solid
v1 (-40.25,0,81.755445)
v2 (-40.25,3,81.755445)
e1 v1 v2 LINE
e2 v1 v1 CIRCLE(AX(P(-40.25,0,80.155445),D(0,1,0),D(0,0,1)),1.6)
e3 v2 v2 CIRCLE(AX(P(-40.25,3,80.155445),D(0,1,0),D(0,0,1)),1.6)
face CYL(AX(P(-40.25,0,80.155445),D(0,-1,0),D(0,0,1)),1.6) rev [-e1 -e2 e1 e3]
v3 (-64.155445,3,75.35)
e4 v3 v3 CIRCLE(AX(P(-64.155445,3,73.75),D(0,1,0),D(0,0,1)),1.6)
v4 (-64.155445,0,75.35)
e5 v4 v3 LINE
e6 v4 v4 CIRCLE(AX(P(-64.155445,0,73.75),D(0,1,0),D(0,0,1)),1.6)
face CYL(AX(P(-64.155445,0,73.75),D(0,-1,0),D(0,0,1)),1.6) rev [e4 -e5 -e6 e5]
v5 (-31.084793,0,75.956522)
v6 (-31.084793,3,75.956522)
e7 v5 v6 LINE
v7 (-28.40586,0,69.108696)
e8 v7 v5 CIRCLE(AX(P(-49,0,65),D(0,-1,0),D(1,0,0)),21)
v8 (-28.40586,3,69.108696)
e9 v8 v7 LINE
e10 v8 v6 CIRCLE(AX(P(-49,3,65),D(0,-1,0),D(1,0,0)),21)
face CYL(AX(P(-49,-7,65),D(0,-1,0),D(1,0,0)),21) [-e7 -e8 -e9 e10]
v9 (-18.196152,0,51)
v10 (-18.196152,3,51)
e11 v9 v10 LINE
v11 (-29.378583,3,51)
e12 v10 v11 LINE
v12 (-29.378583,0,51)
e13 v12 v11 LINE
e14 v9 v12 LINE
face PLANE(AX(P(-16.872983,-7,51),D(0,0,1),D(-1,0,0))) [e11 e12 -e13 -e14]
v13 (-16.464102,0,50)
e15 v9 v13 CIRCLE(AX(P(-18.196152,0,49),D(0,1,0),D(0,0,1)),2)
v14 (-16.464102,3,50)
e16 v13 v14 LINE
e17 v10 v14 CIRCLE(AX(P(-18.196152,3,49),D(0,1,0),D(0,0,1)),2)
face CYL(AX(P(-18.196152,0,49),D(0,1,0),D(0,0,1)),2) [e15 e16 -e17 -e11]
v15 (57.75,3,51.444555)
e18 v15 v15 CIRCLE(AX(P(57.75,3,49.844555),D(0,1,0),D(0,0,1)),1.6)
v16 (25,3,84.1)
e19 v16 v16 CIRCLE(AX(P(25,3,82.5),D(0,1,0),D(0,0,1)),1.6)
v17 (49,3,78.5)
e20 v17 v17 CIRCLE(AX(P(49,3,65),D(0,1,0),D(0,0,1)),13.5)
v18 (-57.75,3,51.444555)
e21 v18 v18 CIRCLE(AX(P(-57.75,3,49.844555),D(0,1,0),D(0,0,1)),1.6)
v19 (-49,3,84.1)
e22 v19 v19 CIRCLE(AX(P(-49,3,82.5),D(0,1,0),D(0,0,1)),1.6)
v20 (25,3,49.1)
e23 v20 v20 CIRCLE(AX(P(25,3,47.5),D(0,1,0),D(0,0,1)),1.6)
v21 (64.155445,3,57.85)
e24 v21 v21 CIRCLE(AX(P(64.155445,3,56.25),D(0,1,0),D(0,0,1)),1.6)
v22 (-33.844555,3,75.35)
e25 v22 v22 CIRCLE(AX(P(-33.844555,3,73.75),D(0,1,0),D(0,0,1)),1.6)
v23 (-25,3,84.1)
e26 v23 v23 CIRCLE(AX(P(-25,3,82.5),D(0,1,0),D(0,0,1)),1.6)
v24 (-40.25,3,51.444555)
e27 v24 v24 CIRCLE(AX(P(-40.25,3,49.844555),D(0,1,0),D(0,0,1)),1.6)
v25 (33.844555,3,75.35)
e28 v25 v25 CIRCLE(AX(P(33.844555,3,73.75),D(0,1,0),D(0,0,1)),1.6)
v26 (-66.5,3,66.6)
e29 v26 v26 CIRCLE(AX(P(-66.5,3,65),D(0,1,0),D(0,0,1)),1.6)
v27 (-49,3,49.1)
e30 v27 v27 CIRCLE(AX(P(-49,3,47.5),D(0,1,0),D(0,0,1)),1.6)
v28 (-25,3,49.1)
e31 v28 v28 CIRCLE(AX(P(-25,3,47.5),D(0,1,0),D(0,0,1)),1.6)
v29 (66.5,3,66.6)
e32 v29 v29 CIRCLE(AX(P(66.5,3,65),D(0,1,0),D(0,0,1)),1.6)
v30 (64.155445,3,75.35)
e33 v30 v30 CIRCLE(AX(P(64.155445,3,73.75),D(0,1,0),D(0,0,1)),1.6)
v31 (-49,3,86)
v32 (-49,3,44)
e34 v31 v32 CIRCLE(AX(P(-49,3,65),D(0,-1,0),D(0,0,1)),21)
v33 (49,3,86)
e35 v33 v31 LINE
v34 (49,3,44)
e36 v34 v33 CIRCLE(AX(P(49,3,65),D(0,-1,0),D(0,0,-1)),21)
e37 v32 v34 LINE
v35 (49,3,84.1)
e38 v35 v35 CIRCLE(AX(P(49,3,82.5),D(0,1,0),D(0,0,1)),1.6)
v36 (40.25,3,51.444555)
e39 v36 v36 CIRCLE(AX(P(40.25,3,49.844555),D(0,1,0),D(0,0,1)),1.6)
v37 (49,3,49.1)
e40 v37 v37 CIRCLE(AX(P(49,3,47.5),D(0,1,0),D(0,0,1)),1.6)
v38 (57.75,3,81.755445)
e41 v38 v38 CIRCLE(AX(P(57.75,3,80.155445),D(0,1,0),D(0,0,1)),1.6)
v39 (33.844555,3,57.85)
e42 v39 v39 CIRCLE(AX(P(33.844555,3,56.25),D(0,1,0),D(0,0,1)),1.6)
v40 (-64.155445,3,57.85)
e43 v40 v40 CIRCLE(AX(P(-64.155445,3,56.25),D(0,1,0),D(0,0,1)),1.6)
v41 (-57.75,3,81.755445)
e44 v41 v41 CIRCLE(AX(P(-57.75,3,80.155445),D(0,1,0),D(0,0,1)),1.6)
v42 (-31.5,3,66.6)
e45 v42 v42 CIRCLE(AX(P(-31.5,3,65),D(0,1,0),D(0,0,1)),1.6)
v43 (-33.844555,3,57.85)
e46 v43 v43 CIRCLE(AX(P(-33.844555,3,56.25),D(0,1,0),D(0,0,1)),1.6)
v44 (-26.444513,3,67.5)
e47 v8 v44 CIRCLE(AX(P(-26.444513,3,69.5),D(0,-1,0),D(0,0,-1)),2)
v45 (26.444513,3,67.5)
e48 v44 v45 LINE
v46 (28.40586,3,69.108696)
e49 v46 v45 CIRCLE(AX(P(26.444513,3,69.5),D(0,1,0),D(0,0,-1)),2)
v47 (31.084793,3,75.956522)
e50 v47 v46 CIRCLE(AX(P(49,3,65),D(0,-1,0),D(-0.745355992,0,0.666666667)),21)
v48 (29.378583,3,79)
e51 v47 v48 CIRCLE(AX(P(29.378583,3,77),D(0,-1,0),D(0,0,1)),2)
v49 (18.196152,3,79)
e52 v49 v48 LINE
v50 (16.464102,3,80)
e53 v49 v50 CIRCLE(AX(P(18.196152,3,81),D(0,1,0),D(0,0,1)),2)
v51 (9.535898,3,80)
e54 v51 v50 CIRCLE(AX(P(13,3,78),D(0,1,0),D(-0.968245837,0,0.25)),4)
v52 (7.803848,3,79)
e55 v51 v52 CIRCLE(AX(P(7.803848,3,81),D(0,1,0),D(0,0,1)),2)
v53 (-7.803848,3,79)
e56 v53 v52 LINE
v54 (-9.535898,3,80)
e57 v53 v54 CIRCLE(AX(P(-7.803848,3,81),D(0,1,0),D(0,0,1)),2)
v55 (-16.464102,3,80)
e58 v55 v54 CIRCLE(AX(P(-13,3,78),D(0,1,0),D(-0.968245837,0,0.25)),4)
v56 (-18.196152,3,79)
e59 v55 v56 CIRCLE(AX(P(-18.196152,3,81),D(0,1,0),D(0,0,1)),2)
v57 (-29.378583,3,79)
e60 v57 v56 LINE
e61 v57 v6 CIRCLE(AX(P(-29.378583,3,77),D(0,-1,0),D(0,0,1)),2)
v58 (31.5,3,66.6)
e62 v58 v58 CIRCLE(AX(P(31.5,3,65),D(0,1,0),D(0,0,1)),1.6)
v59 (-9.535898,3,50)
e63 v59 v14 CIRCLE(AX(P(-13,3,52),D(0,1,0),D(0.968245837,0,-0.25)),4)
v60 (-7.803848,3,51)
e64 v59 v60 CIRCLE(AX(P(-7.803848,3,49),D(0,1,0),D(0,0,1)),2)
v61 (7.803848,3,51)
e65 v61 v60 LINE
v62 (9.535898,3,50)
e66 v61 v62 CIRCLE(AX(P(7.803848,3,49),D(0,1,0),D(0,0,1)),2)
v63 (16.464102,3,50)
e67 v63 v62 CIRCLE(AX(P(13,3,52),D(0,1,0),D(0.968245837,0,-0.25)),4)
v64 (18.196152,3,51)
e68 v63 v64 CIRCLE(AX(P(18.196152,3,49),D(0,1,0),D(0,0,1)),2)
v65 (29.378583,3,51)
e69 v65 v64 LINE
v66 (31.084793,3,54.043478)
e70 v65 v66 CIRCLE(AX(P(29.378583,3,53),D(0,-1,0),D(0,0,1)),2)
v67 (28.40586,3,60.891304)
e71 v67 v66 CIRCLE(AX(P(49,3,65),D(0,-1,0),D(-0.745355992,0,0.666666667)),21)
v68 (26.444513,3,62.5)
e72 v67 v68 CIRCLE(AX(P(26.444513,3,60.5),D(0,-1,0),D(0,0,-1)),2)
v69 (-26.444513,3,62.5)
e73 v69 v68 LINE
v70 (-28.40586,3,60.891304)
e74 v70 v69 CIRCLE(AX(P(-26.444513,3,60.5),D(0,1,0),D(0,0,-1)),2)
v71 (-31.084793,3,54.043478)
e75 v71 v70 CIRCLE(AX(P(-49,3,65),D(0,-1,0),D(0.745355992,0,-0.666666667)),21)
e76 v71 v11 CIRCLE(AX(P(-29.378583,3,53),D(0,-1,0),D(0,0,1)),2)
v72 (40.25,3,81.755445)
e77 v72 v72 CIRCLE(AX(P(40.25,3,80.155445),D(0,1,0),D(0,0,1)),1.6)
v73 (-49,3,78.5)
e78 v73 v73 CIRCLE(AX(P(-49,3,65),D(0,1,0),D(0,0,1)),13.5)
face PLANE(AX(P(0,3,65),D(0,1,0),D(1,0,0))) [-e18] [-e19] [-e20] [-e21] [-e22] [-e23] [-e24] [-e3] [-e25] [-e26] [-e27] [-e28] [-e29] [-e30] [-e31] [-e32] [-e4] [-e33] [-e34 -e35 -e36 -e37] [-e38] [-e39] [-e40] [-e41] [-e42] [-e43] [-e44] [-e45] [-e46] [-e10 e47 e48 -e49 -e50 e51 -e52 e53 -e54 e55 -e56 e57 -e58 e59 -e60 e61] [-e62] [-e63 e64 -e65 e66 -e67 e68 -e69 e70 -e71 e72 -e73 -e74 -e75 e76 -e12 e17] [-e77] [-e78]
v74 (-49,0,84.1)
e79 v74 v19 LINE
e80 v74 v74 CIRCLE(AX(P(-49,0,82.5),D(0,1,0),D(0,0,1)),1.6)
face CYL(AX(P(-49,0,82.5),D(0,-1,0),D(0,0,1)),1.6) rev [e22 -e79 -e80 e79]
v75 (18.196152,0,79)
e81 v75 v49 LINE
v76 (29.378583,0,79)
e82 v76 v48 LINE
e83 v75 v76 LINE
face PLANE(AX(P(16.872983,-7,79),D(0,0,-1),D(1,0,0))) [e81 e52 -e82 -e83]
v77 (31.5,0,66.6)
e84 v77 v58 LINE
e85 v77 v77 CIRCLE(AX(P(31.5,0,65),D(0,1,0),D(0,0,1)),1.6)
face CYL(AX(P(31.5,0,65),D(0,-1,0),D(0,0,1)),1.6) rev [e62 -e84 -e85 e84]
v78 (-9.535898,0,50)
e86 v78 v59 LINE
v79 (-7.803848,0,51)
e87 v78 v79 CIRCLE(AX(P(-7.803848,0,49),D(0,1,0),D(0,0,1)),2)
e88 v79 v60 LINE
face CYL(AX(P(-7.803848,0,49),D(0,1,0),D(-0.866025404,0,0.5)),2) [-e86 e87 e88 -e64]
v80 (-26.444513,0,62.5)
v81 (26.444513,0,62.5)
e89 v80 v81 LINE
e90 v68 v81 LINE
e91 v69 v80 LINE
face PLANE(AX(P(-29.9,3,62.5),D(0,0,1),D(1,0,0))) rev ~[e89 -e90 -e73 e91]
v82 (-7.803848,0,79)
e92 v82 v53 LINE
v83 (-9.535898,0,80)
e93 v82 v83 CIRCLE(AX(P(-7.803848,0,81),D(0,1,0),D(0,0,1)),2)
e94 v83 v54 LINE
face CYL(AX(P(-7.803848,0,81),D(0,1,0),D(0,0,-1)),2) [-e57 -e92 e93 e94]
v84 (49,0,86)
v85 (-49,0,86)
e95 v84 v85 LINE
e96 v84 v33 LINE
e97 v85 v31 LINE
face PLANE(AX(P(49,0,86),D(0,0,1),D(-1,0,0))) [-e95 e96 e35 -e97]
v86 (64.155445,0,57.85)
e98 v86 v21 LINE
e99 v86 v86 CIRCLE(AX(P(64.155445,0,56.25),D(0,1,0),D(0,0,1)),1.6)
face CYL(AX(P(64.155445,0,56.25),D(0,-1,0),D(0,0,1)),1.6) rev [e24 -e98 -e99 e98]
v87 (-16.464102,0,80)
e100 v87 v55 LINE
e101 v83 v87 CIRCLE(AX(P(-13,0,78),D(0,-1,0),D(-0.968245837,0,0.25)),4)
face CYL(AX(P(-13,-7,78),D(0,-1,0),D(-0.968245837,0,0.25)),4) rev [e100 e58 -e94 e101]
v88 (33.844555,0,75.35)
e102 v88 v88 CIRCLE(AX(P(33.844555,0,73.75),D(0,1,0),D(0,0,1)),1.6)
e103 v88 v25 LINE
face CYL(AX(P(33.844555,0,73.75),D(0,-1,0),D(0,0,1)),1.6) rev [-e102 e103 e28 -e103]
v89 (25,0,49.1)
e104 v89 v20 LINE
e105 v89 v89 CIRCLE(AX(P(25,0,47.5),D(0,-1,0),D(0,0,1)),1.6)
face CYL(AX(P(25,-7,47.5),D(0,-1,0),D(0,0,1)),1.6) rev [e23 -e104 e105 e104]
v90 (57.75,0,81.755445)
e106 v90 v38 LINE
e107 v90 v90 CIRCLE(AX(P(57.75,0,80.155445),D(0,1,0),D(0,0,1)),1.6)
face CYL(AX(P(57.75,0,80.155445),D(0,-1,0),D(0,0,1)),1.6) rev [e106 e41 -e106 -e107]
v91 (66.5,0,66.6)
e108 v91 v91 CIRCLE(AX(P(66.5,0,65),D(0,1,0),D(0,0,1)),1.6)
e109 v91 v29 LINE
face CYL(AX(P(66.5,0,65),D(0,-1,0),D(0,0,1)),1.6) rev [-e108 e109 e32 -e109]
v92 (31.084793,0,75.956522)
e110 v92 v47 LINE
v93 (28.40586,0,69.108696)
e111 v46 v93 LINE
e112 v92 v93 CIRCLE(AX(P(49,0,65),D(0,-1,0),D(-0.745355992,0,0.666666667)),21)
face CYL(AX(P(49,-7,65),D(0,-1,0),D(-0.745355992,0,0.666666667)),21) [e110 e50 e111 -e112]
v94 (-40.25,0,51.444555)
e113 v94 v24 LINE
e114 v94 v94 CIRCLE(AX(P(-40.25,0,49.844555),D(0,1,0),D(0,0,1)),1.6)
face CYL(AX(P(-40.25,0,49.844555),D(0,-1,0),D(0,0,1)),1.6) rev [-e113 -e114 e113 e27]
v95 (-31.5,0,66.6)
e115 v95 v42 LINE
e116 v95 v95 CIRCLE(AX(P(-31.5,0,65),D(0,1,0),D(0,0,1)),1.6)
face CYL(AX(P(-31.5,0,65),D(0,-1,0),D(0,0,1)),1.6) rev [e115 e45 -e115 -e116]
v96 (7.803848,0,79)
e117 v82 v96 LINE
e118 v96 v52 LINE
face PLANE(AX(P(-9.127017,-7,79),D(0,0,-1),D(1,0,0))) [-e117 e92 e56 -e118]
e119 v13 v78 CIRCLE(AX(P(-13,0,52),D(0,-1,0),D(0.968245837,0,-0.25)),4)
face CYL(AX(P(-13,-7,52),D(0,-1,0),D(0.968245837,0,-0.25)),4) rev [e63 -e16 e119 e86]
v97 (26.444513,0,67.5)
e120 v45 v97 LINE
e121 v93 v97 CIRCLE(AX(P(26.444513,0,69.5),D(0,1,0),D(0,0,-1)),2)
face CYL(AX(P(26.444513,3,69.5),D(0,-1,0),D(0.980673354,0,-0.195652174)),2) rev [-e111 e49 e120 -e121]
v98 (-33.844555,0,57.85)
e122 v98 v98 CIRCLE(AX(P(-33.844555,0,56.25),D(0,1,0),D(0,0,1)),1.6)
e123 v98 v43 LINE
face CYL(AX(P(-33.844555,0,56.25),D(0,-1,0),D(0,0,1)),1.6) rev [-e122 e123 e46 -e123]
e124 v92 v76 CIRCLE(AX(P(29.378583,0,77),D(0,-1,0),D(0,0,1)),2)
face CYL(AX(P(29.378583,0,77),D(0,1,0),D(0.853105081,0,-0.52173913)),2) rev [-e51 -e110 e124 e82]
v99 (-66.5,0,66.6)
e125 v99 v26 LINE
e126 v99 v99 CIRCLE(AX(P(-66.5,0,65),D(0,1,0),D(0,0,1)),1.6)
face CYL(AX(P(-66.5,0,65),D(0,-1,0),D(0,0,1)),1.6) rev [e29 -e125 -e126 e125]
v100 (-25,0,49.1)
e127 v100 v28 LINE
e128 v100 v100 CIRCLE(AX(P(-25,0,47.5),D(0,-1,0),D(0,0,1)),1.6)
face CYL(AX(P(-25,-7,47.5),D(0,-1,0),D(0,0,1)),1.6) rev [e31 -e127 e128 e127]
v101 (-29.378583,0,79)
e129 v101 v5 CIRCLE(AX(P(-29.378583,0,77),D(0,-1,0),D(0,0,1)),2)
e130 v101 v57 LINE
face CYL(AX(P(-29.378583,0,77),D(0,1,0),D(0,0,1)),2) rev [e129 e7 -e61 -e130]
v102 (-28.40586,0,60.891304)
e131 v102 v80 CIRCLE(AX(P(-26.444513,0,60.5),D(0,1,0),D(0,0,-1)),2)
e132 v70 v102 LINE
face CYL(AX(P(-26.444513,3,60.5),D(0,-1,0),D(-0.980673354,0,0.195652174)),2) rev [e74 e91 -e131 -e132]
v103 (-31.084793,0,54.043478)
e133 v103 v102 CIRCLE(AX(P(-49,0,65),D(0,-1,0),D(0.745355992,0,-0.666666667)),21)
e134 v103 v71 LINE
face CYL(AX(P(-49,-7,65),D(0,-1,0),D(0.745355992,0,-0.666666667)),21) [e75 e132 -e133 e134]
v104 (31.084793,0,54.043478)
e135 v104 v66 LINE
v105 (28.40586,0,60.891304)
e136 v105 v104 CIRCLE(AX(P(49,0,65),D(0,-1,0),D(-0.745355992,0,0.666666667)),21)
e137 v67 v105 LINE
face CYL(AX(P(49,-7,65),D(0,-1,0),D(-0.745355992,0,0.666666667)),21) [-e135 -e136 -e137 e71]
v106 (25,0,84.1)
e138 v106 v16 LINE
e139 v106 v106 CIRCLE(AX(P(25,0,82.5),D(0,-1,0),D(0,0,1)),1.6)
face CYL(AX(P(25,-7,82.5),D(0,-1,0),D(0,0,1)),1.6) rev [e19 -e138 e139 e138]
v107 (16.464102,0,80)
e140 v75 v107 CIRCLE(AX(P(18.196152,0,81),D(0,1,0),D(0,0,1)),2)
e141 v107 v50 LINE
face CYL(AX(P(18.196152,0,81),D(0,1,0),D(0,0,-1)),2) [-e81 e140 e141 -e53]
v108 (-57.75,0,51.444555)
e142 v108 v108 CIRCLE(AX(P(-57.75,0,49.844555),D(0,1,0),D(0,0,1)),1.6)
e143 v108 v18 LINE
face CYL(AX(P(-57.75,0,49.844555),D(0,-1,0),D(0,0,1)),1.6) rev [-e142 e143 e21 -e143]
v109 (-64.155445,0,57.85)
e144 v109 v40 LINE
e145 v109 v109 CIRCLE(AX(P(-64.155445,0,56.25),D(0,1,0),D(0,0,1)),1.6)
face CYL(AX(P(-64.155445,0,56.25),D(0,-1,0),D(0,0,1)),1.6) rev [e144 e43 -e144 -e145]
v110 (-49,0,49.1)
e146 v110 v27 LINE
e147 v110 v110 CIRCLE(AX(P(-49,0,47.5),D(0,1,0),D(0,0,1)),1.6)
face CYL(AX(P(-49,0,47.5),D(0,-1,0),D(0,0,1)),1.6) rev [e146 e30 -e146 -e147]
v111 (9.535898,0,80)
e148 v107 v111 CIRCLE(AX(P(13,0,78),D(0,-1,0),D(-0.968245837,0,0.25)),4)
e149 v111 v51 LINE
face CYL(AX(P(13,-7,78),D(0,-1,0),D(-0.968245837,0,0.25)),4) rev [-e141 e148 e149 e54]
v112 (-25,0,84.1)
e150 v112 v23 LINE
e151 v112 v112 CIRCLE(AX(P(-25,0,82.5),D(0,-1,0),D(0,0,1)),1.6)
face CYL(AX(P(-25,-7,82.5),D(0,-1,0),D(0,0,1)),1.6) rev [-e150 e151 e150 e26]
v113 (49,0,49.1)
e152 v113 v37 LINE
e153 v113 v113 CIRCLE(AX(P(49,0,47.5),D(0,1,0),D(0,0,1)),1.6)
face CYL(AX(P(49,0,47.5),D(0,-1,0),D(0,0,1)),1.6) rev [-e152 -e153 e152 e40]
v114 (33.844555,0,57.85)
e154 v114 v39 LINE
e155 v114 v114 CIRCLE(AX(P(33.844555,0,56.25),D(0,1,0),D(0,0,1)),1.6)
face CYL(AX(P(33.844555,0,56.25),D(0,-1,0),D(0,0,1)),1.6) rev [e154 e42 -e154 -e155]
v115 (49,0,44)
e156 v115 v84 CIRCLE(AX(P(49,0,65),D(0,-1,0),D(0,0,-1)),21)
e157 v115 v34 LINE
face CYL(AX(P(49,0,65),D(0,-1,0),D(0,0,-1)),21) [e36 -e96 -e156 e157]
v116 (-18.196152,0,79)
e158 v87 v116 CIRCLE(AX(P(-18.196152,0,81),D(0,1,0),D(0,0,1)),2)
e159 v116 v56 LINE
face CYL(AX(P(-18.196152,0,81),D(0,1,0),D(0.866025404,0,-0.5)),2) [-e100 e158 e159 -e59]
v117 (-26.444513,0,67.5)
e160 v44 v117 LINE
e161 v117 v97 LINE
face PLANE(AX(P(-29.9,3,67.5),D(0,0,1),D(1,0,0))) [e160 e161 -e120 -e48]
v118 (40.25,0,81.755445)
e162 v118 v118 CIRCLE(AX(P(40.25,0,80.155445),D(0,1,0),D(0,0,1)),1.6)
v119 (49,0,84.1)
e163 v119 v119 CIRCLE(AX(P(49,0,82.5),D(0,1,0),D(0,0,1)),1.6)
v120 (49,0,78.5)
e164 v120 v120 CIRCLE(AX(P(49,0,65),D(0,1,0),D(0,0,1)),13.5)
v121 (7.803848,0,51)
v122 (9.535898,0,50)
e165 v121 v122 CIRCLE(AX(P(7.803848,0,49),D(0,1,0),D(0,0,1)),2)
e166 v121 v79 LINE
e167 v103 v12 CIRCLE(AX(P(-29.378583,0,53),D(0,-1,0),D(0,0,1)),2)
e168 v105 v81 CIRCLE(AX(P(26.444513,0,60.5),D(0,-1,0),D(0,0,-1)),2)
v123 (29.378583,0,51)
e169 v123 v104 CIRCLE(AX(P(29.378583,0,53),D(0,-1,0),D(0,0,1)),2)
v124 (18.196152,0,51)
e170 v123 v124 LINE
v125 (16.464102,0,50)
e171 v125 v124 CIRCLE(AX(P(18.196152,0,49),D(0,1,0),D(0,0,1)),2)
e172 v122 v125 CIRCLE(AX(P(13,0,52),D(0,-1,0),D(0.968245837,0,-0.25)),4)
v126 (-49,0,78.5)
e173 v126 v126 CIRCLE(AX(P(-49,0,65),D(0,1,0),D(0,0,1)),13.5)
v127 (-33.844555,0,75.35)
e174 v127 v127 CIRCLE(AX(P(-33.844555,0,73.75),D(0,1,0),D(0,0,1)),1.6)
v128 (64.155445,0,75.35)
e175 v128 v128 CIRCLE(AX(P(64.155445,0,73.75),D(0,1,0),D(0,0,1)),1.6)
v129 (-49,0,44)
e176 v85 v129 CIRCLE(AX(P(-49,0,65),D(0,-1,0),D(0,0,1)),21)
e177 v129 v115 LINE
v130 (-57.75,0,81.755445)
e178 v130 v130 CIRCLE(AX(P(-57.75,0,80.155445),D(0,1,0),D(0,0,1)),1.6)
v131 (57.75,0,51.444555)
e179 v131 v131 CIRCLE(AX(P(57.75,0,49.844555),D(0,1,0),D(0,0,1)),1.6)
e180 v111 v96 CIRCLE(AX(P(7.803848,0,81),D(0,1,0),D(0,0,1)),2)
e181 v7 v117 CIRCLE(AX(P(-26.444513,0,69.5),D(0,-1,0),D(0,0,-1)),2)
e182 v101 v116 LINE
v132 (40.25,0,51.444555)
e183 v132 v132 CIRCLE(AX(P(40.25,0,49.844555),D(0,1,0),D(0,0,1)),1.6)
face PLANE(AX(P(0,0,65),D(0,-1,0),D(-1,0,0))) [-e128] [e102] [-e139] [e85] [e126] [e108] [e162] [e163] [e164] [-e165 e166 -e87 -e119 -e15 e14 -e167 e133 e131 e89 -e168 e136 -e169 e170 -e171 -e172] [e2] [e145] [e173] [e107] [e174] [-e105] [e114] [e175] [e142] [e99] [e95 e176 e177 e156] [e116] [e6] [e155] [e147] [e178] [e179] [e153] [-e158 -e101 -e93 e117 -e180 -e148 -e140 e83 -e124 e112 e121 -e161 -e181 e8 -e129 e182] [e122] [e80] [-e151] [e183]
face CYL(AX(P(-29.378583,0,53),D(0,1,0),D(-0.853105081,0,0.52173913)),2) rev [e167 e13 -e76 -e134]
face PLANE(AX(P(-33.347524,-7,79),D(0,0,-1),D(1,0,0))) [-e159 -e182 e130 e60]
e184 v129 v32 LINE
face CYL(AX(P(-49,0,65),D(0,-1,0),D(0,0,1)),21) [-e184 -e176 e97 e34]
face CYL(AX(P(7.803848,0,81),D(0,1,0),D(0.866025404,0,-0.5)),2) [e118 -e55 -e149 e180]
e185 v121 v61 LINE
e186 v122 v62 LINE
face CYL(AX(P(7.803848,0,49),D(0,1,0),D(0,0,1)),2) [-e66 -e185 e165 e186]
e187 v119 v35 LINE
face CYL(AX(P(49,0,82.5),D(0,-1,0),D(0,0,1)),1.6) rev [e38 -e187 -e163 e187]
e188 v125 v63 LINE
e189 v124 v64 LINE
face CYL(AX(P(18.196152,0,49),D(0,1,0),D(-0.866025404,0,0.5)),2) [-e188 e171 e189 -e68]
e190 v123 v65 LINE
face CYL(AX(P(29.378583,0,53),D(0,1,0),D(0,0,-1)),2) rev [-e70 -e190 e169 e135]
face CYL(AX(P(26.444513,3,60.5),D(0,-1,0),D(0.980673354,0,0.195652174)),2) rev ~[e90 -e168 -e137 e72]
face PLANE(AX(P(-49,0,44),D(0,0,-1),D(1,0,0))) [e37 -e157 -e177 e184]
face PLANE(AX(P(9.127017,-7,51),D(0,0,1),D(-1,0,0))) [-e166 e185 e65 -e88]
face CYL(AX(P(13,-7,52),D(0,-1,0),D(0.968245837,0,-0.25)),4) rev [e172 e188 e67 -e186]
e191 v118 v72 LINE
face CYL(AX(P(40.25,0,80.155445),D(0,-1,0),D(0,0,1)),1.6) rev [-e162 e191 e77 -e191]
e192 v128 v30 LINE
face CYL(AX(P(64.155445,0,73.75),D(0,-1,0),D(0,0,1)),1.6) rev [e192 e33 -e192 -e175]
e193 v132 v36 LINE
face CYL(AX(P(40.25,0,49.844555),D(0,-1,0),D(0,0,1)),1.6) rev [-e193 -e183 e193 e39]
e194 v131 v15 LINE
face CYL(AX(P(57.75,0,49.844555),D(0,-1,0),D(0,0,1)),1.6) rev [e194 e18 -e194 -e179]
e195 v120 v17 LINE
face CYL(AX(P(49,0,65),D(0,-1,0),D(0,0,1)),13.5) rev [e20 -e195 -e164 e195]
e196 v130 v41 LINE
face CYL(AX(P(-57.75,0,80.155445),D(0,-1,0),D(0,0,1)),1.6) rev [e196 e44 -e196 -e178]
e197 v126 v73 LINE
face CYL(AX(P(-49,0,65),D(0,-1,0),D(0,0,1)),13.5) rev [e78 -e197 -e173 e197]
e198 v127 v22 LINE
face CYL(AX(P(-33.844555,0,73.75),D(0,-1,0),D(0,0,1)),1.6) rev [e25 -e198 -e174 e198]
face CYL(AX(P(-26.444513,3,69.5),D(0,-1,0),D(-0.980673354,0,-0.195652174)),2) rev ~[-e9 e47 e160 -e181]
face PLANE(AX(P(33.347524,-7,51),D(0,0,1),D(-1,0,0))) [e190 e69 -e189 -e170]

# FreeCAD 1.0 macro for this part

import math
import FreeCAD as App
import Part
import Sketcher


def edges_at(feature, points):
    """Names of the edges that pass closest to the given points."""
    edges = feature.Shape.Edges
    near = lambda p: min(range(len(edges)), key=lambda i: edges[i].distToShape(Part.Vertex(*p))[0])
    return sorted({f"Edge{near(p) + 1}" for p in points})


def add_polygon(sketch, points):
    """Adds a closed chain of lines whose ends are joined by coincident constraints."""
    first, n = sketch.GeometryCount, len(points)
    for a, b in zip(points, points[1:] + points[:1]):
        sketch.addGeometry(Part.LineSegment(App.Vector(*a, 0), App.Vector(*b, 0)), False)
    for i in range(n):
        sketch.addConstraint(Sketcher.Constraint("Coincident", first + i, 2, first + (i + 1) % n, 1))

doc = App.newDocument("Part")
params = doc.addObject("Spreadsheet::Sheet", "Params")
for row, (alias, value) in enumerate([
    ("sketch1_diameter", "27 mm"),
    ("sketch1_radius", "21 mm"),
    ("sketch1_diameter2", "3.2 mm"),
    ("sketch1_width", "98 mm"),
    ("pad1_length", "3 mm"),
    ("sketch2_radius", "4 mm"),
    ("sketch2_radius2", "21 mm"),
    ("sketch2_radius3", "1.6 mm"),
    ("pocket1_length", "10 mm"),
    ("sketch3_height", "5 mm"),
    ("sketch3_width", "59.8 mm"),
    ("pad2_length", "3 mm"),
    ("fillet_radius", "2 mm"),
    ("sketch4_diameter", "3.2 mm"),
    ("pocket2_length", "10 mm"),
], start=1):
    params.set(f"A{row}", alias)
    params.set(f"B{row}", "=" + value)
    params.setAlias(f"B{row}", alias)

body = doc.addObject("PartDesign::Body", "Body")

# Sketch on XZ plane
sketch1 = doc.addObject("Sketcher::SketchObject", "Sketch")
body.addObject(sketch1)
sketch1.AttachmentSupport = (doc.XZ_Plane, [""])
sketch1.MapMode = "FlatFace"
sketch1.addGeometry(Part.LineSegment(App.Vector(49, 44, 0), App.Vector(-49, 44, 0)), False)
sketch1.addGeometry(Part.ArcOfCircle(Part.Circle(App.Vector(-49, 65, 0), App.Vector(0, 0, 1), 21), math.radians(90), math.radians(270)), False)
sketch1.addGeometry(Part.LineSegment(App.Vector(-49, 86, 0), App.Vector(49, 86, 0)), False)
sketch1.addGeometry(Part.ArcOfCircle(Part.Circle(App.Vector(49, 65, 0), App.Vector(0, 0, 1), 21), math.radians(-90), math.radians(90)), False)
sketch1.addGeometry(Part.Circle(App.Vector(57.75, 80.155445, 0), App.Vector(0, 0, 1), 1.6), False)
sketch1.addGeometry(Part.Circle(App.Vector(49, 82.5, 0), App.Vector(0, 0, 1), 1.6), False)
sketch1.addGeometry(Part.Circle(App.Vector(40.25, 80.155445, 0), App.Vector(0, 0, 1), 1.6), False)
sketch1.addGeometry(Part.Circle(App.Vector(13, 78, 0), App.Vector(0, 0, 1), 1.6), False)
sketch1.addGeometry(Part.Circle(App.Vector(64.155445, 73.75, 0), App.Vector(0, 0, 1), 1.6), False)
sketch1.addGeometry(Part.Circle(App.Vector(66.5, 65, 0), App.Vector(0, 0, 1), 1.6), False)
sketch1.addGeometry(Part.Circle(App.Vector(49, 65, 0), App.Vector(0, 0, 1), 13.5), False)
sketch1.addGeometry(Part.Circle(App.Vector(33.844555, 73.75, 0), App.Vector(0, 0, 1), 1.6), False)
sketch1.addGeometry(Part.Circle(App.Vector(31.5, 65, 0), App.Vector(0, 0, 1), 1.6), False)
sketch1.addGeometry(Part.Circle(App.Vector(-13, 78, 0), App.Vector(0, 0, 1), 1.6), False)
sketch1.addGeometry(Part.Circle(App.Vector(-49, 82.5, 0), App.Vector(0, 0, 1), 1.6), False)
sketch1.addGeometry(Part.Circle(App.Vector(-40.25, 80.155445, 0), App.Vector(0, 0, 1), 1.6), False)
sketch1.addGeometry(Part.Circle(App.Vector(-57.75, 80.155445, 0), App.Vector(0, 0, 1), 1.6), False)
sketch1.addGeometry(Part.Circle(App.Vector(-33.844555, 73.75, 0), App.Vector(0, 0, 1), 1.6), False)
sketch1.addGeometry(Part.Circle(App.Vector(-31.5, 65, 0), App.Vector(0, 0, 1), 1.6), False)
sketch1.addGeometry(Part.Circle(App.Vector(-64.155445, 73.75, 0), App.Vector(0, 0, 1), 1.6), False)
sketch1.addGeometry(Part.Circle(App.Vector(-49, 65, 0), App.Vector(0, 0, 1), 13.5), False)
sketch1.addGeometry(Part.Circle(App.Vector(-66.5, 65, 0), App.Vector(0, 0, 1), 1.6), False)
sketch1.addGeometry(Part.Circle(App.Vector(64.155445, 56.25, 0), App.Vector(0, 0, 1), 1.6), False)
sketch1.addGeometry(Part.Circle(App.Vector(33.844555, 56.25, 0), App.Vector(0, 0, 1), 1.6), False)
sketch1.addGeometry(Part.Circle(App.Vector(57.75, 49.844555, 0), App.Vector(0, 0, 1), 1.6), False)
sketch1.addGeometry(Part.Circle(App.Vector(40.25, 49.844555, 0), App.Vector(0, 0, 1), 1.6), False)
sketch1.addGeometry(Part.Circle(App.Vector(49, 47.5, 0), App.Vector(0, 0, 1), 1.6), False)
sketch1.addGeometry(Part.Circle(App.Vector(13, 52, 0), App.Vector(0, 0, 1), 1.6), False)
sketch1.addGeometry(Part.Circle(App.Vector(-33.844555, 56.25, 0), App.Vector(0, 0, 1), 1.6), False)
sketch1.addGeometry(Part.Circle(App.Vector(-64.155445, 56.25, 0), App.Vector(0, 0, 1), 1.6), False)
sketch1.addGeometry(Part.Circle(App.Vector(-13, 52, 0), App.Vector(0, 0, 1), 1.6), False)
sketch1.addGeometry(Part.Circle(App.Vector(-40.25, 49.844555, 0), App.Vector(0, 0, 1), 1.6), False)
sketch1.addGeometry(Part.Circle(App.Vector(-49, 47.5, 0), App.Vector(0, 0, 1), 1.6), False)
sketch1.addGeometry(Part.Circle(App.Vector(-57.75, 49.844555, 0), App.Vector(0, 0, 1), 1.6), False)
sketch1.addConstraint(Sketcher.Constraint("Tangent", 0, 2, 1, 2))
sketch1.addConstraint(Sketcher.Constraint("Tangent", 1, 1, 2, 1))
sketch1.addConstraint(Sketcher.Constraint("Tangent", 2, 2, 3, 2))
sketch1.addConstraint(Sketcher.Constraint("Tangent", 3, 1, 0, 1))
sketch1.addConstraint(Sketcher.Constraint("Horizontal", 0))
sketch1.addConstraint(Sketcher.Constraint("Horizontal", 2))
sketch1.addConstraint(Sketcher.Constraint("Coincident", 10, 3, 3, 3))
sketch1.addConstraint(Sketcher.Constraint("Coincident", 20, 3, 1, 3))
sketch1.addConstraint(Sketcher.Constraint("Equal", 4, 5))
sketch1.addConstraint(Sketcher.Constraint("Equal", 5, 6))
sketch1.addConstraint(Sketcher.Constraint("Equal", 6, 7))
sketch1.addConstraint(Sketcher.Constraint("Equal", 7, 8))
sketch1.addConstraint(Sketcher.Constraint("Equal", 8, 9))
sketch1.addConstraint(Sketcher.Constraint("Equal", 9, 11))
sketch1.addConstraint(Sketcher.Constraint("Equal", 11, 12))
sketch1.addConstraint(Sketcher.Constraint("Equal", 12, 13))
sketch1.addConstraint(Sketcher.Constraint("Equal", 13, 14))
sketch1.addConstraint(Sketcher.Constraint("Equal", 14, 15))
sketch1.addConstraint(Sketcher.Constraint("Equal", 15, 16))
sketch1.addConstraint(Sketcher.Constraint("Equal", 16, 17))
sketch1.addConstraint(Sketcher.Constraint("Equal", 17, 18))
sketch1.addConstraint(Sketcher.Constraint("Equal", 18, 19))
sketch1.addConstraint(Sketcher.Constraint("Equal", 10, 20))
sketch1.addConstraint(Sketcher.Constraint("Equal", 19, 21))
sketch1.addConstraint(Sketcher.Constraint("Equal", 21, 22))
sketch1.addConstraint(Sketcher.Constraint("Equal", 22, 23))
sketch1.addConstraint(Sketcher.Constraint("Equal", 23, 24))
sketch1.addConstraint(Sketcher.Constraint("Equal", 24, 25))
sketch1.addConstraint(Sketcher.Constraint("Equal", 25, 26))
sketch1.addConstraint(Sketcher.Constraint("Equal", 26, 27))
sketch1.addConstraint(Sketcher.Constraint("Equal", 27, 28))
sketch1.addConstraint(Sketcher.Constraint("Equal", 28, 29))
sketch1.addConstraint(Sketcher.Constraint("Equal", 29, 30))
sketch1.addConstraint(Sketcher.Constraint("Equal", 30, 31))
sketch1.addConstraint(Sketcher.Constraint("Equal", 31, 32))
sketch1.addConstraint(Sketcher.Constraint("Equal", 32, 33))
sketch1.addConstraint(Sketcher.Constraint("Symmetric", 7, 3, 13, 3, -2))
sketch1.addConstraint(Sketcher.Constraint("Symmetric", 5, 3, 14, 3, -2))
sketch1.addConstraint(Sketcher.Constraint("Symmetric", 6, 3, 15, 3, -2))
sketch1.addConstraint(Sketcher.Constraint("Symmetric", 4, 3, 16, 3, -2))
sketch1.addConstraint(Sketcher.Constraint("Symmetric", 11, 3, 17, 3, -2))
sketch1.addConstraint(Sketcher.Constraint("Symmetric", 12, 3, 18, 3, -2))
sketch1.addConstraint(Sketcher.Constraint("Symmetric", 8, 3, 19, 3, -2))
sketch1.addConstraint(Sketcher.Constraint("Symmetric", 9, 3, 21, 3, -2))
sketch1.addConstraint(Sketcher.Constraint("Symmetric", 23, 3, 28, 3, -2))
sketch1.addConstraint(Sketcher.Constraint("Symmetric", 22, 3, 29, 3, -2))
sketch1.addConstraint(Sketcher.Constraint("Symmetric", 27, 3, 30, 3, -2))
sketch1.addConstraint(Sketcher.Constraint("Symmetric", 25, 3, 31, 3, -2))
sketch1.addConstraint(Sketcher.Constraint("Symmetric", 26, 3, 32, 3, -2))
sketch1.addConstraint(Sketcher.Constraint("Symmetric", 24, 3, 33, 3, -2))
sketch1.addConstraint(Sketcher.Constraint("Horizontal", 4, 3, 6, 3))
sketch1.addConstraint(Sketcher.Constraint("Horizontal", 3, 3, 9, 3))
sketch1.addConstraint(Sketcher.Constraint("Horizontal", 8, 3, 11, 3))
sketch1.addConstraint(Sketcher.Constraint("Horizontal", 10, 3, 12, 3))
sketch1.addConstraint(Sketcher.Constraint("Horizontal", 22, 3, 23, 3))
sketch1.addConstraint(Sketcher.Constraint("Horizontal", 24, 3, 25, 3))
sketch1.addConstraint(Sketcher.Constraint("Vertical", 3, 3, 5, 3))
sketch1.addConstraint(Sketcher.Constraint("Vertical", 1, 3, 14, 3))
sketch1.addConstraint(Sketcher.Constraint("Vertical", 8, 3, 22, 3))
sketch1.addConstraint(Sketcher.Constraint("Vertical", 11, 3, 23, 3))
sketch1.addConstraint(Sketcher.Constraint("Vertical", 4, 3, 24, 3))
sketch1.addConstraint(Sketcher.Constraint("Vertical", 6, 3, 25, 3))
sketch1.addConstraint(Sketcher.Constraint("Vertical", 10, 3, 26, 3))
sketch1.addConstraint(Sketcher.Constraint("Vertical", 7, 3, 27, 3))
sketch1.addConstraint(Sketcher.Constraint("Diameter", 10, 27.0))
sketch1.addConstraint(Sketcher.Constraint("Radius", 1, 21.0))
sketch1.addConstraint(Sketcher.Constraint("Diameter", 4, 3.2))
sketch1.addConstraint(Sketcher.Constraint("DistanceX", 0, 2, 0, 1, 98.0))
sketch1.addConstraint(Sketcher.Constraint("DistanceY", -1, 1, 1, 3, 65.0))
sketch1.addConstraint(Sketcher.Constraint("DistanceX", -1, 1, 7, 3, 13.0))
sketch1.addConstraint(Sketcher.Constraint("DistanceY", -1, 1, 7, 3, 78.0))
sketch1.addConstraint(Sketcher.Constraint("DistanceY", -1, 1, 27, 3, 52.0))
sketch1.addConstraint(Sketcher.Constraint("DistanceY", -1, 1, 5, 3, 82.5))
sketch1.addConstraint(Sketcher.Constraint("DistanceX", -1, 1, 9, 3, 66.5))
sketch1.addConstraint(Sketcher.Constraint("DistanceX", -1, 1, 12, 3, 31.5))
sketch1.addConstraint(Sketcher.Constraint("DistanceY", -1, 1, 26, 3, 47.5))
sketch1.addConstraint(Sketcher.Constraint("DistanceX", 6, 3, 4, 3, 17.5))
sketch1.addConstraint(Sketcher.Constraint("DistanceY", 22, 3, 8, 3, 17.5))
sketch1.addConstraint(Sketcher.Constraint("DistanceX", -1, 1, 4, 3, 57.75))
sketch1.addConstraint(Sketcher.Constraint("DistanceY", -1, 1, 8, 3, 73.75))
sketch1.addConstraint(Sketcher.Constraint("DistanceX", 19, 3, 17, 3, 30.310889))
sketch1.addConstraint(Sketcher.Constraint("DistanceY", -1, 1, 4, 3, 80.155445))
sketch1.addConstraint(Sketcher.Constraint("DistanceX", -1, 1, 8, 3, 64.155445))
sketch1.addConstraint(Sketcher.Constraint("DistanceY", -1, 1, 24, 3, 49.844555))
sketch1.setExpression("Constraints[64]", "Params.sketch1_diameter")
sketch1.setExpression("Constraints[65]", "Params.sketch1_radius")
sketch1.setExpression("Constraints[66]", "Params.sketch1_diameter2")
sketch1.setExpression("Constraints[67]", "Params.sketch1_width")
pad1 = doc.addObject("PartDesign::Pad", "Pad")
body.addObject(pad1)
pad1.Profile = sketch1
pad1.setExpression("Length", "Params.pad1_length")
pad1.Reversed = True

# Sketch on XZ plane
sketch2 = doc.addObject("Sketcher::SketchObject", "Sketch001")
body.addObject(sketch2)
sketch2.AttachmentSupport = (doc.XZ_Plane, [""])
sketch2.MapMode = "FlatFace"
sketch2.AttachmentOffset = App.Placement(App.Vector(0, 0, 7), App.Rotation())
sketch2.addGeometry(Part.LineSegment(App.Vector(33.347524, 51, 0), App.Vector(16.872983, 51, 0)), False)
sketch2.addGeometry(Part.ArcOfCircle(Part.Circle(App.Vector(13, 52, 0), App.Vector(0, 0, 1), 4), math.radians(-165.522488), math.radians(-14.477512)), False)
sketch2.addGeometry(Part.LineSegment(App.Vector(9.127017, 51, 0), App.Vector(-9.127017, 51, 0)), False)
sketch2.addGeometry(Part.ArcOfCircle(Part.Circle(App.Vector(-13, 52, 0), App.Vector(0, 0, 1), 4), math.radians(-165.522488), math.radians(-14.477512)), False)
sketch2.addGeometry(Part.LineSegment(App.Vector(-16.872983, 51, 0), App.Vector(-33.347524, 51, 0)), False)
sketch2.addGeometry(Part.ArcOfCircle(Part.Circle(App.Vector(-49, 65, 0), App.Vector(0, 0, 1), 21), math.radians(-41.810315), math.radians(0)), False)
sketch2.addGeometry(Part.ArcOfCircle(Part.Circle(App.Vector(-49, 65, 0), App.Vector(0, 0, 1), 21), math.radians(0), math.radians(41.810315)), False)
sketch2.addGeometry(Part.LineSegment(App.Vector(-33.347524, 79, 0), App.Vector(-16.872983, 79, 0)), False)
sketch2.addGeometry(Part.ArcOfCircle(Part.Circle(App.Vector(-13, 78, 0), App.Vector(0, 0, 1), 4), math.radians(14.477512), math.radians(165.522488)), False)
sketch2.addGeometry(Part.LineSegment(App.Vector(-9.127017, 79, 0), App.Vector(9.127017, 79, 0)), False)
sketch2.addGeometry(Part.ArcOfCircle(Part.Circle(App.Vector(13, 78, 0), App.Vector(0, 0, 1), 4), math.radians(14.477512), math.radians(165.522488)), False)
sketch2.addGeometry(Part.LineSegment(App.Vector(16.872983, 79, 0), App.Vector(33.347524, 79, 0)), False)
sketch2.addGeometry(Part.ArcOfCircle(Part.Circle(App.Vector(49, 65, 0), App.Vector(0, 0, 1), 21), math.radians(138.189685), math.radians(221.810315)), False)
sketch2.addGeometry(Part.ArcOfCircle(Part.Circle(App.Vector(-13, 78, 0), App.Vector(0, 0, 1), 1.6), math.radians(141.317813), math.radians(360)), False)
sketch2.addGeometry(Part.ArcOfCircle(Part.Circle(App.Vector(-13, 78, 0), App.Vector(0, 0, 1), 1.6), math.radians(0), math.radians(38.682187)), False)
sketch2.addGeometry(Part.ArcOfCircle(Part.Circle(App.Vector(-13, 78, 0), App.Vector(0, 0, 1), 1.6), math.radians(38.682187), math.radians(141.317813)), False)
sketch2.addGeometry(Part.ArcOfCircle(Part.Circle(App.Vector(13, 78, 0), App.Vector(0, 0, 1), 1.6), math.radians(141.317813), math.radians(360)), False)
sketch2.addGeometry(Part.ArcOfCircle(Part.Circle(App.Vector(13, 78, 0), App.Vector(0, 0, 1), 1.6), math.radians(0), math.radians(38.682187)), False)
sketch2.addGeometry(Part.ArcOfCircle(Part.Circle(App.Vector(13, 78, 0), App.Vector(0, 0, 1), 1.6), math.radians(38.682187), math.radians(141.317813)), False)
sketch2.addGeometry(Part.ArcOfCircle(Part.Circle(App.Vector(-13, 52, 0), App.Vector(0, 0, 1), 1.6), math.radians(-38.682187), math.radians(0)), False)
sketch2.addGeometry(Part.ArcOfCircle(Part.Circle(App.Vector(-13, 52, 0), App.Vector(0, 0, 1), 1.6), math.radians(0), math.radians(218.682187)), False)
sketch2.addGeometry(Part.ArcOfCircle(Part.Circle(App.Vector(-13, 52, 0), App.Vector(0, 0, 1), 1.6), math.radians(-141.317813), math.radians(-38.682187)), False)
sketch2.addGeometry(Part.ArcOfCircle(Part.Circle(App.Vector(13, 52, 0), App.Vector(0, 0, 1), 1.6), math.radians(0), math.radians(218.682187)), False)
sketch2.addGeometry(Part.ArcOfCircle(Part.Circle(App.Vector(13, 52, 0), App.Vector(0, 0, 1), 1.6), math.radians(-141.317813), math.radians(-38.682187)), False)
sketch2.addGeometry(Part.ArcOfCircle(Part.Circle(App.Vector(13, 52, 0), App.Vector(0, 0, 1), 1.6), math.radians(-38.682187), math.radians(0)), False)
sketch2.addConstraint(Sketcher.Constraint("Coincident", 0, 2, 1, 2))
sketch2.addConstraint(Sketcher.Constraint("Coincident", 1, 1, 2, 1))
sketch2.addConstraint(Sketcher.Constraint("Coincident", 2, 2, 3, 2))
sketch2.addConstraint(Sketcher.Constraint("Coincident", 3, 1, 4, 1))
sketch2.addConstraint(Sketcher.Constraint("Coincident", 4, 2, 5, 1))
sketch2.addConstraint(Sketcher.Constraint("Tangent", 5, 2, 6, 1))
sketch2.addConstraint(Sketcher.Constraint("Coincident", 6, 2, 7, 1))
sketch2.addConstraint(Sketcher.Constraint("Coincident", 7, 2, 8, 2))
sketch2.addConstraint(Sketcher.Constraint("Coincident", 8, 1, 9, 1))
sketch2.addConstraint(Sketcher.Constraint("Coincident", 9, 2, 10, 2))
sketch2.addConstraint(Sketcher.Constraint("Coincident", 10, 1, 11, 1))
sketch2.addConstraint(Sketcher.Constraint("Coincident", 11, 2, 12, 1))
sketch2.addConstraint(Sketcher.Constraint("Coincident", 12, 2, 0, 1))
sketch2.addConstraint(Sketcher.Constraint("Tangent", 13, 2, 14, 1))
sketch2.addConstraint(Sketcher.Constraint("Tangent", 14, 2, 15, 1))
sketch2.addConstraint(Sketcher.Constraint("Tangent", 15, 2, 13, 1))
sketch2.addConstraint(Sketcher.Constraint("Tangent", 16, 2, 17, 1))
sketch2.addConstraint(Sketcher.Constraint("Tangent", 17, 2, 18, 1))
sketch2.addConstraint(Sketcher.Constraint("Tangent", 18, 2, 16, 1))
sketch2.addConstraint(Sketcher.Constraint("Tangent", 19, 2, 20, 1))
sketch2.addConstraint(Sketcher.Constraint("Tangent", 20, 2, 21, 1))
sketch2.addConstraint(Sketcher.Constraint("Tangent", 21, 2, 19, 1))
sketch2.addConstraint(Sketcher.Constraint("Tangent", 22, 2, 23, 1))
sketch2.addConstraint(Sketcher.Constraint("Tangent", 23, 2, 24, 1))
sketch2.addConstraint(Sketcher.Constraint("Tangent", 24, 2, 22, 1))
sketch2.addConstraint(Sketcher.Constraint("Horizontal", 0))
sketch2.addConstraint(Sketcher.Constraint("Horizontal", 2))
sketch2.addConstraint(Sketcher.Constraint("Horizontal", 4))
sketch2.addConstraint(Sketcher.Constraint("Horizontal", 7))
sketch2.addConstraint(Sketcher.Constraint("Horizontal", 9))
sketch2.addConstraint(Sketcher.Constraint("Horizontal", 11))
sketch2.addConstraint(Sketcher.Constraint("Coincident", 13, 3, 8, 3))
sketch2.addConstraint(Sketcher.Constraint("Coincident", 16, 3, 10, 3))
sketch2.addConstraint(Sketcher.Constraint("Coincident", 19, 3, 3, 3))
sketch2.addConstraint(Sketcher.Constraint("Coincident", 22, 3, 1, 3))
sketch2.addConstraint(Sketcher.Constraint("Equal", 1, 3))
sketch2.addConstraint(Sketcher.Constraint("Equal", 5, 6))
sketch2.addConstraint(Sketcher.Constraint("Equal", 3, 8))
sketch2.addConstraint(Sketcher.Constraint("Equal", 8, 10))
sketch2.addConstraint(Sketcher.Constraint("Equal", 6, 12))
sketch2.addConstraint(Sketcher.Constraint("Equal", 15, 16))
sketch2.addConstraint(Sketcher.Constraint("Equal", 18, 19))
sketch2.addConstraint(Sketcher.Constraint("Equal", 21, 22))
sketch2.addConstraint(Sketcher.Constraint("Symmetric", 1, 3, 3, 3, -2))
sketch2.addConstraint(Sketcher.Constraint("Symmetric", 8, 3, 10, 3, -2))
sketch2.addConstraint(Sketcher.Constraint("Symmetric", 5, 3, 12, 3, -2))
sketch2.addConstraint(Sketcher.Constraint("Horizontal", 0, 2, 1, 1))
sketch2.addConstraint(Sketcher.Constraint("Horizontal", 2, 2, 3, 1))
sketch2.addConstraint(Sketcher.Constraint("Horizontal", 12, 3, 5, 2))
sketch2.addConstraint(Sketcher.Constraint("Horizontal", 7, 2, 8, 1))
sketch2.addConstraint(Sketcher.Constraint("Horizontal", 9, 2, 10, 1))
sketch2.addConstraint(Sketcher.Constraint("Horizontal", 18, 3, 13, 2))
sketch2.addConstraint(Sketcher.Constraint("Horizontal", 11, 2, 14, 2))
sketch2.addConstraint(Sketcher.Constraint("Horizontal", 14, 2, 15, 2))
sketch2.addConstraint(Sketcher.Constraint("Horizontal", 13, 2, 16, 2))
sketch2.addConstraint(Sketcher.Constraint("Horizontal", 15, 2, 17, 2))
sketch2.addConstraint(Sketcher.Constraint("Horizontal", 17, 2, 18, 2))
sketch2.addConstraint(Sketcher.Constraint("Horizontal", 24, 3, 19, 2))
sketch2.addConstraint(Sketcher.Constraint("Horizontal", 12, 2, 20, 2))
sketch2.addConstraint(Sketcher.Constraint("Horizontal", 20, 2, 21, 2))
sketch2.addConstraint(Sketcher.Constraint("Horizontal", 21, 2, 22, 2))
sketch2.addConstraint(Sketcher.Constraint("Horizontal", 22, 2, 23, 2))
sketch2.addConstraint(Sketcher.Constraint("Horizontal", 19, 2, 24, 2))
sketch2.addConstraint(Sketcher.Constraint("Vertical", 3, 3, 8, 3))
sketch2.addConstraint(Sketcher.Constraint("Vertical", 4, 2, 6, 2))
sketch2.addConstraint(Sketcher.Constraint("Vertical", 3, 1, 7, 2))
sketch2.addConstraint(Sketcher.Constraint("Radius", 1, 4.0))
sketch2.addConstraint(Sketcher.Constraint("Radius", 5, 21.0))
sketch2.addConstraint(Sketcher.Constraint("Radius", 13, 1.6))
sketch2.addConstraint(Sketcher.Constraint("DistanceX", -1, 1, 1, 3, 13.0))
sketch2.addConstraint(Sketcher.Constraint("DistanceY", -1, 1, 1, 3, 52.0))
sketch2.addConstraint(Sketcher.Constraint("DistanceX", 5, 3, -1, 1, 49.0))
sketch2.addConstraint(Sketcher.Constraint("DistanceY", -1, 1, 5, 3, 65.0))
sketch2.addConstraint(Sketcher.Constraint("DistanceY", -1, 1, 0, 2, 51.0))
sketch2.setExpression("Constraints[66]", "Params.sketch2_radius")
sketch2.setExpression("Constraints[67]", "Params.sketch2_radius2")
sketch2.setExpression("Constraints[68]", "Params.sketch2_radius3")
pocket1 = doc.addObject("PartDesign::Pocket", "Pocket")
body.addObject(pocket1)
pocket1.Profile = sketch2
pocket1.setExpression("Length", "Params.pocket1_length")

# Sketch on XZ plane
sketch3 = doc.addObject("Sketcher::SketchObject", "Sketch002")
body.addObject(sketch3)
sketch3.AttachmentSupport = (doc.XZ_Plane, [""])
sketch3.MapMode = "FlatFace"
sketch3.AttachmentOffset = App.Placement(App.Vector(0, 0, -3), App.Rotation())
add_polygon(sketch3, [(-29.9, 62.5), (-29.9, 67.5), (29.9, 67.5), (29.9, 62.5)])  # lines 0-3
sketch3.addConstraint(Sketcher.Constraint("Vertical", 0))
sketch3.addConstraint(Sketcher.Constraint("Horizontal", 1))
sketch3.addConstraint(Sketcher.Constraint("Vertical", 2))
sketch3.addConstraint(Sketcher.Constraint("Horizontal", 3))
sketch3.addConstraint(Sketcher.Constraint("DistanceY", 0, 1, 0, 2, 5.0))
sketch3.addConstraint(Sketcher.Constraint("DistanceX", 1, 1, 1, 2, 59.8))
sketch3.addConstraint(Sketcher.Constraint("DistanceX", 0, 2, -1, 1, 29.9))
sketch3.addConstraint(Sketcher.Constraint("DistanceY", -1, 1, 0, 2, 67.5))
sketch3.setExpression("Constraints[8]", "Params.sketch3_height")
sketch3.setExpression("Constraints[9]", "Params.sketch3_width")
pad2 = doc.addObject("PartDesign::Pad", "Pad001")
body.addObject(pad2)
pad2.Profile = sketch3
pad2.setExpression("Length", "Params.pad2_length")
doc.recompute()

fillet = doc.addObject("PartDesign::Fillet", "Fillet")
body.addObject(fillet)
fillet.Base = (pad2, edges_at(pad2, [
    (-33.348, 1.5, 79),
    (-33.348, 1.5, 51),
    (-16.873, 1.5, 51),
    (-9.127, 1.5, 51),
    (9.127, 1.5, 51),
    (16.873, 1.5, 51),
    (33.348, 1.5, 51),
    (33.348, 1.5, 79),
    (16.873, 1.5, 79),
    (9.127, 1.5, 79),
    (-16.873, 1.5, 79),
    (-9.127, 1.5, 79),
    (28.149, 1.5, 62.5),
    (28.149, 1.5, 67.5),
    (-28.149, 1.5, 62.5),
    (-28.149, 1.5, 67.5),
]))
fillet.setExpression("Radius", "Params.fillet_radius")

# Sketch on XZ plane
sketch4 = doc.addObject("Sketcher::SketchObject", "Sketch003")
body.addObject(sketch4)
sketch4.AttachmentSupport = (doc.XZ_Plane, [""])
sketch4.MapMode = "FlatFace"
sketch4.AttachmentOffset = App.Placement(App.Vector(0, 0, 7), App.Rotation())
sketch4.addGeometry(Part.Circle(App.Vector(-49, 82.5, 0), App.Vector(0, 0, 1), 1.6), False)
sketch4.addGeometry(Part.Circle(App.Vector(-49, 47.5, 0), App.Vector(0, 0, 1), 1.6), False)
sketch4.addGeometry(Part.Circle(App.Vector(25, 82.5, 0), App.Vector(0, 0, 1), 1.6), False)
sketch4.addGeometry(Part.Circle(App.Vector(-25, 82.5, 0), App.Vector(0, 0, 1), 1.6), False)
sketch4.addGeometry(Part.Circle(App.Vector(-25, 47.5, 0), App.Vector(0, 0, 1), 1.6), False)
sketch4.addGeometry(Part.Circle(App.Vector(25, 47.5, 0), App.Vector(0, 0, 1), 1.6), False)
sketch4.addConstraint(Sketcher.Constraint("Equal", 0, 1))
sketch4.addConstraint(Sketcher.Constraint("Equal", 1, 2))
sketch4.addConstraint(Sketcher.Constraint("Equal", 2, 3))
sketch4.addConstraint(Sketcher.Constraint("Equal", 3, 4))
sketch4.addConstraint(Sketcher.Constraint("Equal", 4, 5))
sketch4.addConstraint(Sketcher.Constraint("Symmetric", 2, 3, 3, 3, -2))
sketch4.addConstraint(Sketcher.Constraint("Symmetric", 4, 3, 5, 3, -2))
sketch4.addConstraint(Sketcher.Constraint("Horizontal", 0, 3, 2, 3))
sketch4.addConstraint(Sketcher.Constraint("Horizontal", 1, 3, 4, 3))
sketch4.addConstraint(Sketcher.Constraint("Vertical", 0, 3, 1, 3))
sketch4.addConstraint(Sketcher.Constraint("Vertical", 3, 3, 4, 3))
sketch4.addConstraint(Sketcher.Constraint("Diameter", 0, 3.2))
sketch4.addConstraint(Sketcher.Constraint("DistanceX", 0, 3, -1, 1, 49.0))
sketch4.addConstraint(Sketcher.Constraint("DistanceX", -1, 1, 2, 3, 25.0))
sketch4.addConstraint(Sketcher.Constraint("DistanceY", 1, 3, 0, 3, 35.0))
sketch4.addConstraint(Sketcher.Constraint("DistanceY", -1, 1, 0, 3, 82.5))
sketch4.setExpression("Constraints[11]", "Params.sketch4_diameter")
pocket2 = doc.addObject("PartDesign::Pocket", "Pocket001")
body.addObject(pocket2)
pocket2.Profile = sketch4
pocket2.setExpression("Length", "Params.pocket2_length")

doc.recompute()
